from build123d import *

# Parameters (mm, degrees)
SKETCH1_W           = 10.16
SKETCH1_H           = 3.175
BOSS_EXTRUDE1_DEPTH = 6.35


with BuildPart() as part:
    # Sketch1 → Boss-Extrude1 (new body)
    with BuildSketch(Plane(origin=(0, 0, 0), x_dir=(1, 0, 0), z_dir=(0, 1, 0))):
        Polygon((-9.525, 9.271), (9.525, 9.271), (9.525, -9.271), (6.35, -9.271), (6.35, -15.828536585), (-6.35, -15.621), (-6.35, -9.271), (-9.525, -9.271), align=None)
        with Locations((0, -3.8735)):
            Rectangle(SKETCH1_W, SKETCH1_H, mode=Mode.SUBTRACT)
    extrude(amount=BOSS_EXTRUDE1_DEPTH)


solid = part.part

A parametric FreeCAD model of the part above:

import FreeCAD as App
import Part
import Sketcher

V = App.Vector
Q = App.Units.Quantity

doc = App.newDocument("Part")
body = doc.addObject("PartDesign::Body", "Body")

sketch1 = body.newObject("Sketcher::SketchObject", "Sketch")
sketch1.AttachmentSupport = (doc.getObject("XZ_Plane"), [""])
sketch1.MapMode = "FlatFace"
sketch1.addGeometry([
    Part.LineSegment(V(9.525, -9.271, 0), V(-9.525, -9.271, 0)),
    Part.LineSegment(V(-9.525, -9.271, 0), V(-9.525, 9.271, 0)),
    Part.LineSegment(V(-9.525, 9.271, 0), V(-6.35, 9.271, 0)),
    Part.LineSegment(V(-6.35, 9.271, 0), V(-6.35, 15.621, 0)),
    Part.LineSegment(V(-6.35, 15.621, 0), V(6.35, 15.828537, 0)),
    Part.LineSegment(V(6.35, 15.828537, 0), V(6.35, 9.271, 0)),
    Part.LineSegment(V(6.35, 9.271, 0), V(9.525, 9.271, 0)),
    Part.LineSegment(V(9.525, 9.271, 0), V(9.525, -9.271, 0)),
    Part.LineSegment(V(-5.08, 5.461, 0), V(-5.08, 2.286, 0)),
    Part.LineSegment(V(-5.08, 2.286, 0), V(5.08, 2.286, 0)),
    Part.LineSegment(V(5.08, 2.286, 0), V(5.08, 5.461, 0)),
    Part.LineSegment(V(5.08, 5.461, 0), V(-5.08, 5.461, 0)),
], False)
sketch1.addConstraint([
    Sketcher.Constraint("Coincident", 0, 2, 1, 1),
    Sketcher.Constraint("Coincident", 1, 2, 2, 1),
    Sketcher.Constraint("Coincident", 2, 2, 3, 1),
    Sketcher.Constraint("Coincident", 3, 2, 4, 1),
    Sketcher.Constraint("Coincident", 4, 2, 5, 1),
    Sketcher.Constraint("Coincident", 5, 2, 6, 1),
    Sketcher.Constraint("Coincident", 6, 2, 7, 1),
    Sketcher.Constraint("Coincident", 7, 2, 0, 1),
    Sketcher.Constraint("Coincident", 8, 2, 9, 1),
    Sketcher.Constraint("Coincident", 9, 2, 10, 1),
    Sketcher.Constraint("Coincident", 10, 2, 11, 1),
    Sketcher.Constraint("Coincident", 11, 2, 8, 1),
    Sketcher.Constraint("Horizontal", 0),
    Sketcher.Constraint("Vertical", 1),
    Sketcher.Constraint("Horizontal", 2),
    Sketcher.Constraint("Vertical", 3),
    Sketcher.Constraint("Vertical", 5),
    Sketcher.Constraint("Horizontal", 6),
    Sketcher.Constraint("Vertical", 7),
    Sketcher.Constraint("Vertical", 8),
    Sketcher.Constraint("Horizontal", 9),
    Sketcher.Constraint("Vertical", 10),
    Sketcher.Constraint("Horizontal", 11),
    Sketcher.Constraint("Symmetric", 0, 2, 6, 2, -1, 1),
    Sketcher.Constraint("Symmetric", 2, 2, 5, 2, -2),
    Sketcher.Constraint("Equal", 6, 8),
    Sketcher.Constraint("DistanceX", 9, 1, 9, 2, Q("0.4 in")),
    Sketcher.Constraint("DistanceX", 0, 2, 0, 1, Q("0.75 in")),
    Sketcher.Constraint("DistanceY", 1, 1, 1, 2, Q("0.73 in")),
    Sketcher.Constraint("DistanceY", 3, 1, 3, 2, Q("0.25 in")),
    Sketcher.Constraint("DistanceX", 8, 2, -1, 1, Q("0.2 in")),
    Sketcher.Constraint("DistanceX", 3, 2, 4, 2, Q("0.5 in")),
    Sketcher.Constraint("DistanceY", 11, 2, 3, 2, Q("0.4 in")),
    Sketcher.Constraint("DistanceY", 5, 2, 5, 1, 6.557537),
])
pad1 = body.newObject("PartDesign::Pad", "Pad")
pad1.Profile = sketch1
pad1.Length = Q("0.25 in")
pad1.Reversed = True

doc.recompute()
